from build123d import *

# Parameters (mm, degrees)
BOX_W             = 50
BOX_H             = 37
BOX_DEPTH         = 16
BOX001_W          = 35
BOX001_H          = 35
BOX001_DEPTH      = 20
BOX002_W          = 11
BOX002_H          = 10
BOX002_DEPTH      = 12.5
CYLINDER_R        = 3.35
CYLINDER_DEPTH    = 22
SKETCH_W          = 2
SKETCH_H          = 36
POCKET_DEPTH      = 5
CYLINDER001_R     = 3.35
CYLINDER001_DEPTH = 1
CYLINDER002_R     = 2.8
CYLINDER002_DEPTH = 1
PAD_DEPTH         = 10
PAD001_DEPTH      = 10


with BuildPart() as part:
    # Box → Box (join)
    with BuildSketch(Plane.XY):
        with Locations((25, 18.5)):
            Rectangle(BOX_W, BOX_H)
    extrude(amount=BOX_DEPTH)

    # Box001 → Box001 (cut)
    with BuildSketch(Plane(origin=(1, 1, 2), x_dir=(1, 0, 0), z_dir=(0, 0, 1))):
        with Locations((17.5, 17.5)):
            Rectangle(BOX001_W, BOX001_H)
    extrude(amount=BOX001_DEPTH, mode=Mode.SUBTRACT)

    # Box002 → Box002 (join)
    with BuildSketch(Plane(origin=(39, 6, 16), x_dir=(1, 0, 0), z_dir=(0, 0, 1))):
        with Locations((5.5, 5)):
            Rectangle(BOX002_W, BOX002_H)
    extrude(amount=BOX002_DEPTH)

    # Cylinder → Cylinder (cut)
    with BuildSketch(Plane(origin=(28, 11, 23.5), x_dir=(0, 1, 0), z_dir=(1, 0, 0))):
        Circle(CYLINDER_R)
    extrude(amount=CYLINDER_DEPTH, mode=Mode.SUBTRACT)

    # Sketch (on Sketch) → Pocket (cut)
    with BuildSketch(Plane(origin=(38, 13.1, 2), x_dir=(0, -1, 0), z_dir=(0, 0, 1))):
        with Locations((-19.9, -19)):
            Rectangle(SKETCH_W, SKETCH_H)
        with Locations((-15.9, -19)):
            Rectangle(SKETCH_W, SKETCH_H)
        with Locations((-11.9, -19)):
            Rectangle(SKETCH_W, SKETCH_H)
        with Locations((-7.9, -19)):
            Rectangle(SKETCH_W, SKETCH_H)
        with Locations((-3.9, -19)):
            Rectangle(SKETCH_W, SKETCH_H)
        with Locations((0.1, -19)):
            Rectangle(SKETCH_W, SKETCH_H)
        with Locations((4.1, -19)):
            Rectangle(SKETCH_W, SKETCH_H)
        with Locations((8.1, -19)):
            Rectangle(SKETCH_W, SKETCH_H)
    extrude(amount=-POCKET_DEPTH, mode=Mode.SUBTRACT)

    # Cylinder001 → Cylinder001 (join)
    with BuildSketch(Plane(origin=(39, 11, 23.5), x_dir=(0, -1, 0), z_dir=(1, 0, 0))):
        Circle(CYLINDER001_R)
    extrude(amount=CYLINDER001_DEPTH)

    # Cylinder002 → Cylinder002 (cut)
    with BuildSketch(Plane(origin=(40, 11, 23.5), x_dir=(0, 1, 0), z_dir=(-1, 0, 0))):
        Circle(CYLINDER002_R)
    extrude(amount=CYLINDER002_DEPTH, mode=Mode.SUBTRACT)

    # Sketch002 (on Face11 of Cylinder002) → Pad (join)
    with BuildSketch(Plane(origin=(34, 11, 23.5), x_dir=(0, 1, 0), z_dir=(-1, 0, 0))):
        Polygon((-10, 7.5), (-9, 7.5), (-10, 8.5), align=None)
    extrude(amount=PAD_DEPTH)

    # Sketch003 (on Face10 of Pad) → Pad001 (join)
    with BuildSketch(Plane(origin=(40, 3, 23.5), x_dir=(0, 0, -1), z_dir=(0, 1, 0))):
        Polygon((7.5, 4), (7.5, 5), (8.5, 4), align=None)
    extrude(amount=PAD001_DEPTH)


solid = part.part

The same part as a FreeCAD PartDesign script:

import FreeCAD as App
import Part
import Sketcher
Q = App.Units.Quantity

doc = App.newDocument("Part")
body = doc.addObject("PartDesign::Body", "Body")

# Sketch on XY plane
sketch1 = body.newObject("Sketcher::SketchObject", "Sketch")
sketch1.AttachmentSupport = (doc.getObject("XY_Plane"), [""])
sketch1.MapMode = "FlatFace"
sketch1.addGeometry(Part.LineSegment(App.Vector(0, 37, 0), App.Vector(0, 0, 0)), False)
sketch1.addGeometry(Part.LineSegment(App.Vector(0, 0, 0), App.Vector(50, 0, 0)), False)
sketch1.addGeometry(Part.LineSegment(App.Vector(50, 0, 0), App.Vector(50, 37, 0)), False)
sketch1.addGeometry(Part.LineSegment(App.Vector(50, 37, 0), App.Vector(0, 37, 0)), False)
sketch1.addConstraint(Sketcher.Constraint("Coincident", 0, 2, 1, 1))
sketch1.addConstraint(Sketcher.Constraint("Coincident", 1, 2, 2, 1))
sketch1.addConstraint(Sketcher.Constraint("Coincident", 2, 2, 3, 1))
sketch1.addConstraint(Sketcher.Constraint("Coincident", 3, 2, 0, 1))
sketch1.addConstraint(Sketcher.Constraint("Vertical", 0))
sketch1.addConstraint(Sketcher.Constraint("Horizontal", 1))
sketch1.addConstraint(Sketcher.Constraint("Vertical", 2))
sketch1.addConstraint(Sketcher.Constraint("Horizontal", 3))
sketch1.addConstraint(Sketcher.Constraint("Coincident", 0, 2, -1, 1))
sketch1.addConstraint(Sketcher.Constraint("DistanceX", 1, 1, 1, 2, Q("50 mm")))
sketch1.addConstraint(Sketcher.Constraint("DistanceY", 0, 2, 0, 1, Q("37 mm")))
pad1 = body.newObject("PartDesign::Pad", "Pad")
pad1.Profile = sketch1
pad1.Length = 16

# Sketch on XY plane
sketch2 = body.newObject("Sketcher::SketchObject", "Sketch001")
sketch2.AttachmentSupport = (doc.getObject("XY_Plane"), [""])
sketch2.MapMode = "FlatFace"
sketch2.AttachmentOffset = App.Placement(App.Vector(0, 0, 2), App.Rotation())
sketch2.addGeometry(Part.LineSegment(App.Vector(1, 36, 0), App.Vector(1, 1, 0)), False)
sketch2.addGeometry(Part.LineSegment(App.Vector(1, 1, 0), App.Vector(36, 1, 0)), False)
sketch2.addGeometry(Part.LineSegment(App.Vector(36, 1, 0), App.Vector(36, 36, 0)), False)
sketch2.addGeometry(Part.LineSegment(App.Vector(36, 36, 0), App.Vector(1, 36, 0)), False)
sketch2.addConstraint(Sketcher.Constraint("Coincident", 0, 2, 1, 1))
sketch2.addConstraint(Sketcher.Constraint("Coincident", 1, 2, 2, 1))
sketch2.addConstraint(Sketcher.Constraint("Coincident", 2, 2, 3, 1))
sketch2.addConstraint(Sketcher.Constraint("Coincident", 3, 2, 0, 1))
sketch2.addConstraint(Sketcher.Constraint("Vertical", 0))
sketch2.addConstraint(Sketcher.Constraint("Horizontal", 1))
sketch2.addConstraint(Sketcher.Constraint("Vertical", 2))
sketch2.addConstraint(Sketcher.Constraint("Horizontal", 3))
sketch2.addConstraint(Sketcher.Constraint("Equal", 3, 0))
sketch2.addConstraint(Sketcher.Constraint("DistanceX", 1, 1, 1, 2, Q("35 mm")))
sketch2.addConstraint(Sketcher.Constraint("DistanceX", -1, 1, 0, 2, Q("1 mm")))
sketch2.addConstraint(Sketcher.Constraint("DistanceY", -1, 1, 0, 2, Q("1 mm")))
pocket1 = body.newObject("PartDesign::Pocket", "Pocket")
pocket1.Profile = sketch2
pocket1.Length = 20
pocket1.Reversed = True

# Sketch on XY plane
sketch3 = body.newObject("Sketcher::SketchObject", "Sketch002")
sketch3.AttachmentSupport = (doc.getObject("XY_Plane"), [""])
sketch3.MapMode = "FlatFace"
sketch3.AttachmentOffset = App.Placement(App.Vector(0, 0, 16), App.Rotation())
sketch3.addGeometry(Part.LineSegment(App.Vector(39, 16, 0), App.Vector(39, 6, 0)), False)
sketch3.addGeometry(Part.LineSegment(App.Vector(39, 6, 0), App.Vector(50, 6, 0)), False)
sketch3.addGeometry(Part.LineSegment(App.Vector(50, 6, 0), App.Vector(50, 16, 0)), False)
sketch3.addGeometry(Part.LineSegment(App.Vector(50, 16, 0), App.Vector(39, 16, 0)), False)
sketch3.addConstraint(Sketcher.Constraint("Coincident", 0, 2, 1, 1))
sketch3.addConstraint(Sketcher.Constraint("Coincident", 1, 2, 2, 1))
sketch3.addConstraint(Sketcher.Constraint("Coincident", 2, 2, 3, 1))
sketch3.addConstraint(Sketcher.Constraint("Coincident", 3, 2, 0, 1))
sketch3.addConstraint(Sketcher.Constraint("Vertical", 0))
sketch3.addConstraint(Sketcher.Constraint("Horizontal", 1))
sketch3.addConstraint(Sketcher.Constraint("Vertical", 2))
sketch3.addConstraint(Sketcher.Constraint("Horizontal", 3))
sketch3.addConstraint(Sketcher.Constraint("DistanceX", 1, 1, 1, 2, Q("11 mm")))
sketch3.addConstraint(Sketcher.Constraint("DistanceY", 0, 2, 0, 1, Q("10 mm")))
sketch3.addConstraint(Sketcher.Constraint("DistanceX", -1, 1, 0, 2, Q("39 mm")))
sketch3.addConstraint(Sketcher.Constraint("DistanceY", -1, 1, 0, 2, Q("6 mm")))
pad2 = body.newObject("PartDesign::Pad", "Pad001")
pad2.Profile = sketch3
pad2.Length = 12.5

# Sketch on YZ plane
sketch4 = body.newObject("Sketcher::SketchObject", "Sketch003")
sketch4.AttachmentSupport = (doc.getObject("YZ_Plane"), [""])
sketch4.MapMode = "FlatFace"
sketch4.AttachmentOffset = App.Placement(App.Vector(0, 0, 28), App.Rotation())
sketch4.addGeometry(Part.Circle(App.Vector(11, 23.5, 0), App.Vector(0, 0, 1), 3.4), False)
sketch4.addConstraint(Sketcher.Constraint("Diameter", 0, Q("6.7 mm")))
sketch4.addConstraint(Sketcher.Constraint("DistanceX", -1, 1, 0, 3, Q("11 mm")))
sketch4.addConstraint(Sketcher.Constraint("DistanceY", -1, 1, 0, 3, Q("23.5 mm")))
pocket2 = body.newObject("PartDesign::Pocket", "Pocket001")
pocket2.Profile = sketch4
pocket2.Length = 22
pocket2.Reversed = True

# Sketch on XY plane
sketch5 = body.newObject("Sketcher::SketchObject", "Sketch004")
sketch5.AttachmentSupport = (doc.getObject("XY_Plane"), [""])
sketch5.MapMode = "FlatFace"
sketch5.AttachmentOffset = App.Placement(App.Vector(0, 0, 2), App.Rotation())
sketch5.addGeometry(Part.LineSegment(App.Vector(37, 34, 0), App.Vector(1, 34, 0)), False)
sketch5.addGeometry(Part.LineSegment(App.Vector(1, 34, 0), App.Vector(1, 32, 0)), False)
sketch5.addGeometry(Part.LineSegment(App.Vector(1, 32, 0), App.Vector(37, 32, 0)), False)
sketch5.addGeometry(Part.LineSegment(App.Vector(37, 32, 0), App.Vector(37, 34, 0)), False)
sketch5.addGeometry(Part.LineSegment(App.Vector(37, 30, 0), App.Vector(1, 30, 0)), False)
sketch5.addGeometry(Part.LineSegment(App.Vector(1, 30, 0), App.Vector(1, 28, 0)), False)
sketch5.addGeometry(Part.LineSegment(App.Vector(1, 28, 0), App.Vector(37, 28, 0)), False)
sketch5.addGeometry(Part.LineSegment(App.Vector(37, 28, 0), App.Vector(37, 30, 0)), False)
sketch5.addGeometry(Part.LineSegment(App.Vector(37, 26, 0), App.Vector(1, 26, 0)), False)
sketch5.addGeometry(Part.LineSegment(App.Vector(1, 26, 0), App.Vector(1, 24, 0)), False)
sketch5.addGeometry(Part.LineSegment(App.Vector(1, 24, 0), App.Vector(37, 24, 0)), False)
sketch5.addGeometry(Part.LineSegment(App.Vector(37, 24, 0), App.Vector(37, 26, 0)), False)
sketch5.addGeometry(Part.LineSegment(App.Vector(37, 22, 0), App.Vector(1, 22, 0)), False)
sketch5.addGeometry(Part.LineSegment(App.Vector(1, 22, 0), App.Vector(1, 20, 0)), False)
sketch5.addGeometry(Part.LineSegment(App.Vector(1, 20, 0), App.Vector(37, 20, 0)), False)
sketch5.addGeometry(Part.LineSegment(App.Vector(37, 20, 0), App.Vector(37, 22, 0)), False)
sketch5.addGeometry(Part.LineSegment(App.Vector(37, 18, 0), App.Vector(1, 18, 0)), False)
sketch5.addGeometry(Part.LineSegment(App.Vector(1, 18, 0), App.Vector(1, 16, 0)), False)
sketch5.addGeometry(Part.LineSegment(App.Vector(1, 16, 0), App.Vector(37, 16, 0)), False)
sketch5.addGeometry(Part.LineSegment(App.Vector(37, 16, 0), App.Vector(37, 18, 0)), False)
sketch5.addGeometry(Part.LineSegment(App.Vector(37, 14, 0), App.Vector(1, 14, 0)), False)
sketch5.addGeometry(Part.LineSegment(App.Vector(1, 14, 0), App.Vector(1, 12, 0)), False)
sketch5.addGeometry(Part.LineSegment(App.Vector(1, 12, 0), App.Vector(37, 12, 0)), False)
sketch5.addGeometry(Part.LineSegment(App.Vector(37, 12, 0), App.Vector(37, 14, 0)), False)
sketch5.addGeometry(Part.LineSegment(App.Vector(37, 10, 0), App.Vector(1, 10, 0)), False)
sketch5.addGeometry(Part.LineSegment(App.Vector(1, 10, 0), App.Vector(1, 8, 0)), False)
sketch5.addGeometry(Part.LineSegment(App.Vector(1, 8, 0), App.Vector(37, 8, 0)), False)
sketch5.addGeometry(Part.LineSegment(App.Vector(37, 8, 0), App.Vector(37, 10, 0)), False)
sketch5.addGeometry(Part.LineSegment(App.Vector(37, 6, 0), App.Vector(1, 6, 0)), False)
sketch5.addGeometry(Part.LineSegment(App.Vector(1, 6, 0), App.Vector(1, 4, 0)), False)
sketch5.addGeometry(Part.LineSegment(App.Vector(1, 4, 0), App.Vector(37, 4, 0)), False)
sketch5.addGeometry(Part.LineSegment(App.Vector(37, 4, 0), App.Vector(37, 6, 0)), False)
sketch5.addConstraint(Sketcher.Constraint("Coincident", 0, 2, 1, 1))
sketch5.addConstraint(Sketcher.Constraint("Coincident", 1, 2, 2, 1))
sketch5.addConstraint(Sketcher.Constraint("Coincident", 2, 2, 3, 1))
sketch5.addConstraint(Sketcher.Constraint("Coincident", 3, 2, 0, 1))
sketch5.addConstraint(Sketcher.Constraint("Coincident", 4, 2, 5, 1))
sketch5.addConstraint(Sketcher.Constraint("Coincident", 5, 2, 6, 1))
sketch5.addConstraint(Sketcher.Constraint("Coincident", 6, 2, 7, 1))
sketch5.addConstraint(Sketcher.Constraint("Coincident", 7, 2, 4, 1))
sketch5.addConstraint(Sketcher.Constraint("Coincident", 8, 2, 9, 1))
sketch5.addConstraint(Sketcher.Constraint("Coincident", 9, 2, 10, 1))
sketch5.addConstraint(Sketcher.Constraint("Coincident", 10, 2, 11, 1))
sketch5.addConstraint(Sketcher.Constraint("Coincident", 11, 2, 8, 1))
sketch5.addConstraint(Sketcher.Constraint("Coincident", 12, 2, 13, 1))
sketch5.addConstraint(Sketcher.Constraint("Coincident", 13, 2, 14, 1))
sketch5.addConstraint(Sketcher.Constraint("Coincident", 14, 2, 15, 1))
sketch5.addConstraint(Sketcher.Constraint("Coincident", 15, 2, 12, 1))
sketch5.addConstraint(Sketcher.Constraint("Coincident", 16, 2, 17, 1))
sketch5.addConstraint(Sketcher.Constraint("Coincident", 17, 2, 18, 1))
sketch5.addConstraint(Sketcher.Constraint("Coincident", 18, 2, 19, 1))
sketch5.addConstraint(Sketcher.Constraint("Coincident", 19, 2, 16, 1))
sketch5.addConstraint(Sketcher.Constraint("Coincident", 20, 2, 21, 1))
sketch5.addConstraint(Sketcher.Constraint("Coincident", 21, 2, 22, 1))
sketch5.addConstraint(Sketcher.Constraint("Coincident", 22, 2, 23, 1))
sketch5.addConstraint(Sketcher.Constraint("Coincident", 23, 2, 20, 1))
sketch5.addConstraint(Sketcher.Constraint("Coincident", 24, 2, 25, 1))
sketch5.addConstraint(Sketcher.Constraint("Coincident", 25, 2, 26, 1))
sketch5.addConstraint(Sketcher.Constraint("Coincident", 26, 2, 27, 1))
sketch5.addConstraint(Sketcher.Constraint("Coincident", 27, 2, 24, 1))
sketch5.addConstraint(Sketcher.Constraint("Coincident", 28, 2, 29, 1))
sketch5.addConstraint(Sketcher.Constraint("Coincident", 29, 2, 30, 1))
sketch5.addConstraint(Sketcher.Constraint("Coincident", 30, 2, 31, 1))
sketch5.addConstraint(Sketcher.Constraint("Coincident", 31, 2, 28, 1))
sketch5.addConstraint(Sketcher.Constraint("Horizontal", 0))
sketch5.addConstraint(Sketcher.Constraint("Vertical", 1))
sketch5.addConstraint(Sketcher.Constraint("Horizontal", 2))
sketch5.addConstraint(Sketcher.Constraint("Vertical", 3))
sketch5.addConstraint(Sketcher.Constraint("Horizontal", 4))
sketch5.addConstraint(Sketcher.Constraint("Vertical", 5))
sketch5.addConstraint(Sketcher.Constraint("Horizontal", 6))
sketch5.addConstraint(Sketcher.Constraint("Vertical", 7))
sketch5.addConstraint(Sketcher.Constraint("Horizontal", 8))
sketch5.addConstraint(Sketcher.Constraint("Vertical", 9))
sketch5.addConstraint(Sketcher.Constraint("Horizontal", 10))
sketch5.addConstraint(Sketcher.Constraint("Vertical", 11))
sketch5.addConstraint(Sketcher.Constraint("Horizontal", 12))
sketch5.addConstraint(Sketcher.Constraint("Vertical", 13))
sketch5.addConstraint(Sketcher.Constraint("Horizontal", 14))
sketch5.addConstraint(Sketcher.Constraint("Vertical", 15))
sketch5.addConstraint(Sketcher.Constraint("Horizontal", 16))
sketch5.addConstraint(Sketcher.Constraint("Vertical", 17))
sketch5.addConstraint(Sketcher.Constraint("Horizontal", 18))
sketch5.addConstraint(Sketcher.Constraint("Vertical", 19))
sketch5.addConstraint(Sketcher.Constraint("Horizontal", 20))
sketch5.addConstraint(Sketcher.Constraint("Vertical", 21))
sketch5.addConstraint(Sketcher.Constraint("Horizontal", 22))
sketch5.addConstraint(Sketcher.Constraint("Vertical", 23))
sketch5.addConstraint(Sketcher.Constraint("Horizontal", 24))
sketch5.addConstraint(Sketcher.Constraint("Vertical", 25))
sketch5.addConstraint(Sketcher.Constraint("Horizontal", 26))
sketch5.addConstraint(Sketcher.Constraint("Vertical", 27))
sketch5.addConstraint(Sketcher.Constraint("Horizontal", 28))
sketch5.addConstraint(Sketcher.Constraint("Vertical", 29))
sketch5.addConstraint(Sketcher.Constraint("Horizontal", 30))
sketch5.addConstraint(Sketcher.Constraint("Vertical", 31))
sketch5.addConstraint(Sketcher.Constraint("Vertical", 1, 2, 4, 2))
sketch5.addConstraint(Sketcher.Constraint("Vertical", 3, 2, 6, 2))
sketch5.addConstraint(Sketcher.Constraint("Vertical", 5, 2, 8, 2))
sketch5.addConstraint(Sketcher.Constraint("Vertical", 7, 2, 10, 2))
sketch5.addConstraint(Sketcher.Constraint("Vertical", 9, 2, 12, 2))
sketch5.addConstraint(Sketcher.Constraint("Vertical", 11, 2, 14, 2))
sketch5.addConstraint(Sketcher.Constraint("Vertical", 13, 2, 16, 2))
sketch5.addConstraint(Sketcher.Constraint("Vertical", 15, 2, 18, 2))
sketch5.addConstraint(Sketcher.Constraint("Vertical", 17, 2, 20, 2))
sketch5.addConstraint(Sketcher.Constraint("Vertical", 19, 2, 22, 2))
sketch5.addConstraint(Sketcher.Constraint("Vertical", 21, 2, 24, 2))
sketch5.addConstraint(Sketcher.Constraint("Vertical", 23, 2, 26, 2))
sketch5.addConstraint(Sketcher.Constraint("Vertical", 25, 2, 28, 2))
sketch5.addConstraint(Sketcher.Constraint("Vertical", 27, 2, 30, 2))
sketch5.addConstraint(Sketcher.Constraint("Equal", 3, 5))
sketch5.addConstraint(Sketcher.Constraint("Equal", 7, 9))
sketch5.addConstraint(Sketcher.Constraint("Equal", 11, 13))
sketch5.addConstraint(Sketcher.Constraint("Equal", 15, 17))
sketch5.addConstraint(Sketcher.Constraint("Equal", 19, 21))
sketch5.addConstraint(Sketcher.Constraint("Equal", 23, 25))
sketch5.addConstraint(Sketcher.Constraint("Equal", 27, 29))
sketch5.addConstraint(Sketcher.Constraint("DistanceX", 0, 2, 0, 1, Q("36 mm")))
sketch5.addConstraint(Sketcher.Constraint("DistanceY", 1, 2, 1, 1, Q("2 mm")))
sketch5.addConstraint(Sketcher.Constraint("DistanceX", -1, 1, 0, 2, Q("1 mm")))
sketch5.addConstraint(Sketcher.Constraint("DistanceY", -1, 1, 0, 2, Q("34 mm")))
sketch5.addConstraint(Sketcher.Constraint("DistanceY", -1, 1, 4, 2, Q("30 mm")))
sketch5.addConstraint(Sketcher.Constraint("DistanceY", -1, 1, 8, 2, Q("26 mm")))
sketch5.addConstraint(Sketcher.Constraint("DistanceY", -1, 1, 12, 2, Q("22 mm")))
sketch5.addConstraint(Sketcher.Constraint("DistanceY", -1, 1, 16, 2, Q("18 mm")))
sketch5.addConstraint(Sketcher.Constraint("DistanceY", -1, 1, 20, 2, Q("14 mm")))
sketch5.addConstraint(Sketcher.Constraint("DistanceY", -1, 1, 24, 2, Q("10 mm")))
sketch5.addConstraint(Sketcher.Constraint("DistanceY", -1, 1, 28, 2, Q("6 mm")))
pocket3 = body.newObject("PartDesign::Pocket", "Pocket002")
pocket3.Profile = sketch5
pocket3.Length = 5

# Sketch on YZ plane
sketch6 = body.newObject("Sketcher::SketchObject", "Sketch005")
sketch6.AttachmentSupport = (doc.getObject("YZ_Plane"), [""])
sketch6.MapMode = "FlatFace"
sketch6.AttachmentOffset = App.Placement(App.Vector(0, 0, 39), App.Rotation())
sketch6.addGeometry(Part.Circle(App.Vector(11, 23.5, 0), App.Vector(0, 0, 1), 3.4), False)
sketch6.addConstraint(Sketcher.Constraint("Diameter", 0, Q("6.7 mm")))
sketch6.addConstraint(Sketcher.Constraint("DistanceX", -1, 1, 0, 3, Q("11 mm")))
sketch6.addConstraint(Sketcher.Constraint("DistanceY", -1, 1, 0, 3, Q("23.5 mm")))
pad3 = body.newObject("PartDesign::Pad", "Pad002")
pad3.Profile = sketch6
pad3.Length = 1

# Sketch on YZ plane
sketch7 = body.newObject("Sketcher::SketchObject", "Sketch006")
sketch7.AttachmentSupport = (doc.getObject("YZ_Plane"), [""])
sketch7.MapMode = "FlatFace"
sketch7.AttachmentOffset = App.Placement(App.Vector(0, 0, 40), App.Rotation())
sketch7.addGeometry(Part.Circle(App.Vector(11, 23.5, 0), App.Vector(0, 0, 1), 2.8), False)
sketch7.addConstraint(Sketcher.Constraint("Diameter", 0, Q("5.6 mm")))
sketch7.addConstraint(Sketcher.Constraint("DistanceX", -1, 1, 0, 3, Q("11 mm")))
sketch7.addConstraint(Sketcher.Constraint("DistanceY", -1, 1, 0, 3, Q("23.5 mm")))
pocket4 = body.newObject("PartDesign::Pocket", "Pocket003")
pocket4.Profile = sketch7
pocket4.Length = 1

# Sketch on YZ plane
sketch8 = body.newObject("Sketcher::SketchObject", "Sketch007")
sketch8.AttachmentSupport = (doc.getObject("YZ_Plane"), [""])
sketch8.MapMode = "FlatFace"
sketch8.AttachmentOffset = App.Placement(App.Vector(0, 0, 34), App.Rotation())
sketch8.addGeometry(Part.LineSegment(App.Vector(1, 16, 0), App.Vector(2, 16, 0)), False)
sketch8.addGeometry(Part.LineSegment(App.Vector(2, 16, 0), App.Vector(1, 15, 0)), False)
sketch8.addGeometry(Part.LineSegment(App.Vector(1, 15, 0), App.Vector(1, 16, 0)), False)
sketch8.addConstraint(Sketcher.Constraint("Coincident", 0, 2, 1, 1))
sketch8.addConstraint(Sketcher.Constraint("Coincident", 1, 2, 2, 1))
sketch8.addConstraint(Sketcher.Constraint("Coincident", 2, 2, 0, 1))
sketch8.addConstraint(Sketcher.Constraint("Horizontal", 0))
sketch8.addConstraint(Sketcher.Constraint("Vertical", 2))
sketch8.addConstraint(Sketcher.Constraint("Equal", 0, 2))
sketch8.addConstraint(Sketcher.Constraint("DistanceX", 0, 1, 0, 2, Q("1 mm")))
sketch8.addConstraint(Sketcher.Constraint("DistanceX", -1, 1, 0, 2, Q("2 mm")))
sketch8.addConstraint(Sketcher.Constraint("DistanceY", -1, 1, 0, 2, Q("16 mm")))
pad4 = body.newObject("PartDesign::Pad", "Pad003")
pad4.Profile = sketch8
pad4.Length = 10
pad4.Reversed = True

# Sketch on XZ plane
sketch9 = body.newObject("Sketcher::SketchObject", "Sketch008")
sketch9.AttachmentSupport = (doc.getObject("XZ_Plane"), [""])
sketch9.MapMode = "FlatFace"
sketch9.AttachmentOffset = App.Placement(App.Vector(0, 0, -3), App.Rotation())
sketch9.addGeometry(Part.LineSegment(App.Vector(35, 16, 0), App.Vector(36, 16, 0)), False)
sketch9.addGeometry(Part.LineSegment(App.Vector(36, 16, 0), App.Vector(36, 15, 0)), False)
sketch9.addGeometry(Part.LineSegment(App.Vector(36, 15, 0), App.Vector(35, 16, 0)), False)
sketch9.addConstraint(Sketcher.Constraint("Coincident", 0, 2, 1, 1))
sketch9.addConstraint(Sketcher.Constraint("Coincident", 1, 2, 2, 1))
sketch9.addConstraint(Sketcher.Constraint("Coincident", 2, 2, 0, 1))
sketch9.addConstraint(Sketcher.Constraint("Horizontal", 0))
sketch9.addConstraint(Sketcher.Constraint("Vertical", 1))
sketch9.addConstraint(Sketcher.Constraint("Equal", 0, 1))
sketch9.addConstraint(Sketcher.Constraint("DistanceX", 0, 1, 0, 2, Q("1 mm")))
sketch9.addConstraint(Sketcher.Constraint("DistanceX", -1, 1, 0, 2, Q("36 mm")))
sketch9.addConstraint(Sketcher.Constraint("DistanceY", -1, 1, 0, 2, Q("16 mm")))
pad5 = body.newObject("PartDesign::Pad", "Pad004")
pad5.Profile = sketch9
pad5.Length = 10
pad5.Reversed = True

doc.recompute()
